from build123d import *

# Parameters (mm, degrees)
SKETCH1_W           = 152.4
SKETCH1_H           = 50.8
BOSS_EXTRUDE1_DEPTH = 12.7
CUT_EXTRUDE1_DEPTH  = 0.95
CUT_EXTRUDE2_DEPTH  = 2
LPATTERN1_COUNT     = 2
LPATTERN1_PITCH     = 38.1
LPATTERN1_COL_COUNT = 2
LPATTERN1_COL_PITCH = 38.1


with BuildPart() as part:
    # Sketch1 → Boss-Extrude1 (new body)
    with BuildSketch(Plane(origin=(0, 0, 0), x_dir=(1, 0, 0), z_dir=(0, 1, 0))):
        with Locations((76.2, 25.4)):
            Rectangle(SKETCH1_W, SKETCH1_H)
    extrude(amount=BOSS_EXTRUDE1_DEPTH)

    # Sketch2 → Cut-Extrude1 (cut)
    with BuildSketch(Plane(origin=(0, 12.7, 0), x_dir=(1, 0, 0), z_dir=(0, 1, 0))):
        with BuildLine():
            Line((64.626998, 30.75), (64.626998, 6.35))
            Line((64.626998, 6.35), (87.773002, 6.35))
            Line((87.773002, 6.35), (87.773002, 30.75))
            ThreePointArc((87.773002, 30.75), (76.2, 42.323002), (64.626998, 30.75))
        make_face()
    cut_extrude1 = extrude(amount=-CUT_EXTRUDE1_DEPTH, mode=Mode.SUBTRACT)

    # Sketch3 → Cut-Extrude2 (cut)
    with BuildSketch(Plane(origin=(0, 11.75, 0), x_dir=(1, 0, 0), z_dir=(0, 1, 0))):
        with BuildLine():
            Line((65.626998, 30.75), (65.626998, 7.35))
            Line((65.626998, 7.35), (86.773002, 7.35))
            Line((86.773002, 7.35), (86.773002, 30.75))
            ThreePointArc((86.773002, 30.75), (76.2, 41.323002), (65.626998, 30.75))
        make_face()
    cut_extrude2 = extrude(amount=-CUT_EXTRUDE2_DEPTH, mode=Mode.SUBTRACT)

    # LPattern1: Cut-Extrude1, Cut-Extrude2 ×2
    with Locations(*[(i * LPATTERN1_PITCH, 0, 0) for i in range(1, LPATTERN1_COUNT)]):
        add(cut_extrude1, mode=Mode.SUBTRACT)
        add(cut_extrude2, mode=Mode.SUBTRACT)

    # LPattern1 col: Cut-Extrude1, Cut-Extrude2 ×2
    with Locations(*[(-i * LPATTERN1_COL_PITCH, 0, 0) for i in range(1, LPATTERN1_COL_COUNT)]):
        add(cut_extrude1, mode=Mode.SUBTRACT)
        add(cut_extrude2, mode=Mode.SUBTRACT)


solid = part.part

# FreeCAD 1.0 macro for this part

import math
import FreeCAD as App
import Part
import Sketcher
from FreeCAD import Vector
Q = App.Units.Quantity

doc = App.newDocument("Part")
body = doc.addObject("PartDesign::Body", "Body")

sketch1 = doc.addObject("Sketcher::SketchObject", "Sketch")
body.addObject(sketch1)
sketch1.AttachmentSupport = (doc.XZ_Plane, [""])
sketch1.MapMode = "FlatFace"
sketch1.addGeometry(Part.LineSegment(Vector(0, -51, 0), Vector(0, 0, 0)), False)
sketch1.addGeometry(Part.LineSegment(Vector(0, 0, 0), Vector(152, 0, 0)), False)
sketch1.addGeometry(Part.LineSegment(Vector(152, 0, 0), Vector(152, -51, 0)), False)
sketch1.addGeometry(Part.LineSegment(Vector(152, -51, 0), Vector(0, -51, 0)), False)
sketch1.addConstraint(Sketcher.Constraint("Coincident", 0, 2, 1, 1))
sketch1.addConstraint(Sketcher.Constraint("Coincident", 1, 2, 2, 1))
sketch1.addConstraint(Sketcher.Constraint("Coincident", 2, 2, 3, 1))
sketch1.addConstraint(Sketcher.Constraint("Coincident", 3, 2, 0, 1))
sketch1.addConstraint(Sketcher.Constraint("Vertical", 0))
sketch1.addConstraint(Sketcher.Constraint("Horizontal", 1))
sketch1.addConstraint(Sketcher.Constraint("Vertical", 2))
sketch1.addConstraint(Sketcher.Constraint("Horizontal", 3))
sketch1.addConstraint(Sketcher.Constraint("Coincident", 0, 2, -1, 1))
sketch1.addConstraint(Sketcher.Constraint("DistanceX", 1, 1, 1, 2, Q("152.4 mm")))
sketch1.addConstraint(Sketcher.Constraint("DistanceY", 0, 1, 0, 2, Q("50.8 mm")))
pad1 = doc.addObject("PartDesign::Pad", "Pad")
body.addObject(pad1)
pad1.Profile = sketch1
pad1.Length = 12.7
pad1.Reversed = True

sketch2 = doc.addObject("Sketcher::SketchObject", "Sketch001")
body.addObject(sketch2)
sketch2.AttachmentSupport = (doc.XZ_Plane, [""])
sketch2.MapMode = "FlatFace"
sketch2.AttachmentOffset = App.Placement(Vector(0, 0, -12.7), App.Rotation())
sketch2.addGeometry(Part.LineSegment(Vector(65, -31, 0), Vector(65, -6, 0)), False)
sketch2.addGeometry(Part.LineSegment(Vector(65, -6, 0), Vector(88, -6, 0)), False)
sketch2.addGeometry(Part.LineSegment(Vector(88, -6, 0), Vector(88, -31, 0)), False)
sketch2.addGeometry(Part.ArcOfCircle(Part.Circle(Vector(76, -31, 0), Vector(0, 0, 1), 12), math.radians(180), math.radians(360)), False)
sketch2.addConstraint(Sketcher.Constraint("Coincident", 0, 2, 1, 1))
sketch2.addConstraint(Sketcher.Constraint("Coincident", 1, 2, 2, 1))
sketch2.addConstraint(Sketcher.Constraint("Tangent", 2, 2, 3, 2))
sketch2.addConstraint(Sketcher.Constraint("Tangent", 3, 1, 0, 1))
sketch2.addConstraint(Sketcher.Constraint("Vertical", 0))
sketch2.addConstraint(Sketcher.Constraint("Horizontal", 1))
sketch2.addConstraint(Sketcher.Constraint("Vertical", 2))
sketch2.addConstraint(Sketcher.Constraint("DistanceY", 0, 1, 0, 2, Q("24.4 mm")))
sketch2.addConstraint(Sketcher.Constraint("DistanceX", -1, 1, 3, 3, Q("76.2 mm")))
sketch2.addConstraint(Sketcher.Constraint("DistanceY", 3, 3, -1, 1, Q("30.75 mm")))
sketch2.addConstraint(Sketcher.Constraint("DistanceX", -1, 1, 0, 2, Q("64.626998 mm")))
pocket1 = doc.addObject("PartDesign::Pocket", "Pocket")
body.addObject(pocket1)
pocket1.Profile = sketch2
pocket1.Length = 0.95
pocket1.Reversed = True

sketch3 = doc.addObject("Sketcher::SketchObject", "Sketch002")
body.addObject(sketch3)
sketch3.AttachmentSupport = (doc.XZ_Plane, [""])
sketch3.MapMode = "FlatFace"
sketch3.AttachmentOffset = App.Placement(Vector(0, 0, -11.75), App.Rotation())
sketch3.addGeometry(Part.LineSegment(Vector(66, -31, 0), Vector(66, -7, 0)), False)
sketch3.addGeometry(Part.LineSegment(Vector(66, -7, 0), Vector(87, -7, 0)), False)
sketch3.addGeometry(Part.LineSegment(Vector(87, -7, 0), Vector(87, -31, 0)), False)
sketch3.addGeometry(Part.ArcOfCircle(Part.Circle(Vector(76, -31, 0), Vector(0, 0, 1), 11), math.radians(180), math.radians(360)), False)
sketch3.addConstraint(Sketcher.Constraint("Coincident", 0, 2, 1, 1))
sketch3.addConstraint(Sketcher.Constraint("Coincident", 1, 2, 2, 1))
sketch3.addConstraint(Sketcher.Constraint("Tangent", 2, 2, 3, 2))
sketch3.addConstraint(Sketcher.Constraint("Tangent", 3, 1, 0, 1))
sketch3.addConstraint(Sketcher.Constraint("Vertical", 0))
sketch3.addConstraint(Sketcher.Constraint("Horizontal", 1))
sketch3.addConstraint(Sketcher.Constraint("Vertical", 2))
sketch3.addConstraint(Sketcher.Constraint("DistanceY", 0, 1, 0, 2, Q("23.4 mm")))
sketch3.addConstraint(Sketcher.Constraint("DistanceX", -1, 1, 3, 3, Q("76.2 mm")))
sketch3.addConstraint(Sketcher.Constraint("DistanceY", 3, 3, -1, 1, Q("30.75 mm")))
sketch3.addConstraint(Sketcher.Constraint("DistanceX", -1, 1, 0, 2, Q("65.626998 mm")))
pocket2 = doc.addObject("PartDesign::Pocket", "Pocket001")
body.addObject(pocket2)
pocket2.Profile = sketch3
pocket2.Length = 2
pocket2.Reversed = True
doc.recompute()

linearpattern = doc.addObject("PartDesign::LinearPattern", "LinearPattern")
body.addObject(linearpattern)
linearpattern.Originals = [pocket1, pocket2]
linearpattern.Direction = (doc.X_Axis, [""])
linearpattern.Mode = "offset"
linearpattern.Offset = 38.1
linearpattern.Occurrences = 2
body.Tip = linearpattern
doc.recompute()

linearpattern2 = doc.addObject("PartDesign::LinearPattern", "LinearPattern001")
body.addObject(linearpattern2)
linearpattern2.Originals = [pocket1, pocket2]
linearpattern2.Direction = (doc.X_Axis, [""])
linearpattern2.Mode = "offset"
linearpattern2.Offset = 38.1
linearpattern2.Occurrences = 2
linearpattern2.Reversed = True
body.Tip = linearpattern2

doc.recompute()
